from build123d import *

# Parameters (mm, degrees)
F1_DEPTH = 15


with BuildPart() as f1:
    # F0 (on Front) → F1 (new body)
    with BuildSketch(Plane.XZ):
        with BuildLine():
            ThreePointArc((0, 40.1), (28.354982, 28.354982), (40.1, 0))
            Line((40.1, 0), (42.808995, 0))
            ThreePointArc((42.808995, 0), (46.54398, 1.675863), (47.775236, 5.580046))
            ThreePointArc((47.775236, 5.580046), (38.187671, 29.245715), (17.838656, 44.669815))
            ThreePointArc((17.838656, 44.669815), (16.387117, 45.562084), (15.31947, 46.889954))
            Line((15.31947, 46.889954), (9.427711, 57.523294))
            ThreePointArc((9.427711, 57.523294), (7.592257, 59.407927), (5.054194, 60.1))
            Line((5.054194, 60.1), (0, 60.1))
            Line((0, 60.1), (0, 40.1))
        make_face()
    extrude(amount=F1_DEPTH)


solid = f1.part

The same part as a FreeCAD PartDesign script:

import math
import FreeCAD as App
import Part
import Sketcher

V = App.Vector
Q = App.Units.Quantity

doc = App.newDocument("Part")
body = doc.addObject("PartDesign::Body", "Body")

sketch1 = doc.addObject("Sketcher::SketchObject", "Sketch")
body.addObject(sketch1)
sketch1.AttachmentSupport = (doc.XZ_Plane, [""])
sketch1.MapMode = "FlatFace"
sketch1.addGeometry(Part.ArcOfCircle(Part.Circle(V(0, 0, 0), V(0, 0, 1), 40.1), math.radians(0), math.radians(90)), False)
sketch1.addGeometry(Part.LineSegment(V(40.1, 0, 0), V(42.808995, 0, 0)), False)
sketch1.addGeometry(Part.ArcOfCircle(Part.Circle(V(42.808995, 5.000001, 0), V(0, 0, 1), 5.000001), math.radians(-89.999997), math.radians(6.661831)), False)
sketch1.addGeometry(Part.ArcOfCircle(Part.Circle(V(0.000001, 0, 0), V(0, 0, 1), 48.1), math.radians(6.661842), math.radians(68.230964)), False)
sketch1.addGeometry(Part.ArcOfCircle(Part.Circle(V(19.692989, 49.313249, 0), V(0, 0, 1), 5.000003), math.radians(-151.009888), math.radians(-111.769065)), False)
sketch1.addGeometry(Part.LineSegment(V(15.31947, 46.889954, 0), V(9.427711, 57.523294, 0)), False)
sketch1.addGeometry(Part.ArcOfCircle(Part.Circle(V(5.054193, 55.099998, 0), V(0, 0, 1), 5.000002), math.radians(28.990137), math.radians(89.99999)), False)
sketch1.addGeometry(Part.LineSegment(V(5.054194, 60.1, 0), V(0, 60.1, 0)), False)
sketch1.addGeometry(Part.LineSegment(V(0, 60.1, 0), V(0, 40.1, 0)), False)
sketch1.addConstraint(Sketcher.Constraint("Coincident", 0, 1, 1, 1))
sketch1.addConstraint(Sketcher.Constraint("Tangent", 1, 2, 2, 1))
sketch1.addConstraint(Sketcher.Constraint("Tangent", 2, 2, 3, 1))
sketch1.addConstraint(Sketcher.Constraint("Tangent", 3, 2, 4, 2))
sketch1.addConstraint(Sketcher.Constraint("Tangent", 4, 1, 5, 1))
sketch1.addConstraint(Sketcher.Constraint("Tangent", 5, 2, 6, 1))
sketch1.addConstraint(Sketcher.Constraint("Tangent", 6, 2, 7, 1))
sketch1.addConstraint(Sketcher.Constraint("Coincident", 7, 2, 8, 1))
sketch1.addConstraint(Sketcher.Constraint("Coincident", 8, 2, 0, 2))
sketch1.addConstraint(Sketcher.Constraint("Horizontal", 1))
sketch1.addConstraint(Sketcher.Constraint("Horizontal", 7))
sketch1.addConstraint(Sketcher.Constraint("Vertical", 8))
sketch1.addConstraint(Sketcher.Constraint("Coincident", 0, 3, -1, 1))
sketch1.addConstraint(Sketcher.Constraint("Coincident", 3, 3, -1, 1))
sketch1.addConstraint(Sketcher.Constraint("Equal", 4, 6))
sketch1.addConstraint(Sketcher.Constraint("PointOnObject", 0, 1, -1))
sketch1.addConstraint(Sketcher.Constraint("PointOnObject", 7, 2, -2))
sketch1.addConstraint(Sketcher.Constraint("Radius", 2, Q("5.000001 mm")))
sketch1.addConstraint(Sketcher.Constraint("Radius", 0, Q("40.1 mm")))
sketch1.addConstraint(Sketcher.Constraint("Radius", 3, Q("48.1 mm")))
sketch1.addConstraint(Sketcher.Constraint("DistanceY", 8, 2, 8, 1, Q("20 mm")))
sketch1.addConstraint(Sketcher.Constraint("Radius", 4, Q("5.000003 mm")))
sketch1.addConstraint(Sketcher.Constraint("DistanceX", 6, 3, 2, 3, Q("37.754802 mm")))
sketch1.addConstraint(Sketcher.Constraint("Distance", 5, Q("12.15651 mm")))
pad1 = doc.addObject("PartDesign::Pad", "Pad")
body.addObject(pad1)
pad1.Profile = sketch1
pad1.Length = 15

doc.recompute()
